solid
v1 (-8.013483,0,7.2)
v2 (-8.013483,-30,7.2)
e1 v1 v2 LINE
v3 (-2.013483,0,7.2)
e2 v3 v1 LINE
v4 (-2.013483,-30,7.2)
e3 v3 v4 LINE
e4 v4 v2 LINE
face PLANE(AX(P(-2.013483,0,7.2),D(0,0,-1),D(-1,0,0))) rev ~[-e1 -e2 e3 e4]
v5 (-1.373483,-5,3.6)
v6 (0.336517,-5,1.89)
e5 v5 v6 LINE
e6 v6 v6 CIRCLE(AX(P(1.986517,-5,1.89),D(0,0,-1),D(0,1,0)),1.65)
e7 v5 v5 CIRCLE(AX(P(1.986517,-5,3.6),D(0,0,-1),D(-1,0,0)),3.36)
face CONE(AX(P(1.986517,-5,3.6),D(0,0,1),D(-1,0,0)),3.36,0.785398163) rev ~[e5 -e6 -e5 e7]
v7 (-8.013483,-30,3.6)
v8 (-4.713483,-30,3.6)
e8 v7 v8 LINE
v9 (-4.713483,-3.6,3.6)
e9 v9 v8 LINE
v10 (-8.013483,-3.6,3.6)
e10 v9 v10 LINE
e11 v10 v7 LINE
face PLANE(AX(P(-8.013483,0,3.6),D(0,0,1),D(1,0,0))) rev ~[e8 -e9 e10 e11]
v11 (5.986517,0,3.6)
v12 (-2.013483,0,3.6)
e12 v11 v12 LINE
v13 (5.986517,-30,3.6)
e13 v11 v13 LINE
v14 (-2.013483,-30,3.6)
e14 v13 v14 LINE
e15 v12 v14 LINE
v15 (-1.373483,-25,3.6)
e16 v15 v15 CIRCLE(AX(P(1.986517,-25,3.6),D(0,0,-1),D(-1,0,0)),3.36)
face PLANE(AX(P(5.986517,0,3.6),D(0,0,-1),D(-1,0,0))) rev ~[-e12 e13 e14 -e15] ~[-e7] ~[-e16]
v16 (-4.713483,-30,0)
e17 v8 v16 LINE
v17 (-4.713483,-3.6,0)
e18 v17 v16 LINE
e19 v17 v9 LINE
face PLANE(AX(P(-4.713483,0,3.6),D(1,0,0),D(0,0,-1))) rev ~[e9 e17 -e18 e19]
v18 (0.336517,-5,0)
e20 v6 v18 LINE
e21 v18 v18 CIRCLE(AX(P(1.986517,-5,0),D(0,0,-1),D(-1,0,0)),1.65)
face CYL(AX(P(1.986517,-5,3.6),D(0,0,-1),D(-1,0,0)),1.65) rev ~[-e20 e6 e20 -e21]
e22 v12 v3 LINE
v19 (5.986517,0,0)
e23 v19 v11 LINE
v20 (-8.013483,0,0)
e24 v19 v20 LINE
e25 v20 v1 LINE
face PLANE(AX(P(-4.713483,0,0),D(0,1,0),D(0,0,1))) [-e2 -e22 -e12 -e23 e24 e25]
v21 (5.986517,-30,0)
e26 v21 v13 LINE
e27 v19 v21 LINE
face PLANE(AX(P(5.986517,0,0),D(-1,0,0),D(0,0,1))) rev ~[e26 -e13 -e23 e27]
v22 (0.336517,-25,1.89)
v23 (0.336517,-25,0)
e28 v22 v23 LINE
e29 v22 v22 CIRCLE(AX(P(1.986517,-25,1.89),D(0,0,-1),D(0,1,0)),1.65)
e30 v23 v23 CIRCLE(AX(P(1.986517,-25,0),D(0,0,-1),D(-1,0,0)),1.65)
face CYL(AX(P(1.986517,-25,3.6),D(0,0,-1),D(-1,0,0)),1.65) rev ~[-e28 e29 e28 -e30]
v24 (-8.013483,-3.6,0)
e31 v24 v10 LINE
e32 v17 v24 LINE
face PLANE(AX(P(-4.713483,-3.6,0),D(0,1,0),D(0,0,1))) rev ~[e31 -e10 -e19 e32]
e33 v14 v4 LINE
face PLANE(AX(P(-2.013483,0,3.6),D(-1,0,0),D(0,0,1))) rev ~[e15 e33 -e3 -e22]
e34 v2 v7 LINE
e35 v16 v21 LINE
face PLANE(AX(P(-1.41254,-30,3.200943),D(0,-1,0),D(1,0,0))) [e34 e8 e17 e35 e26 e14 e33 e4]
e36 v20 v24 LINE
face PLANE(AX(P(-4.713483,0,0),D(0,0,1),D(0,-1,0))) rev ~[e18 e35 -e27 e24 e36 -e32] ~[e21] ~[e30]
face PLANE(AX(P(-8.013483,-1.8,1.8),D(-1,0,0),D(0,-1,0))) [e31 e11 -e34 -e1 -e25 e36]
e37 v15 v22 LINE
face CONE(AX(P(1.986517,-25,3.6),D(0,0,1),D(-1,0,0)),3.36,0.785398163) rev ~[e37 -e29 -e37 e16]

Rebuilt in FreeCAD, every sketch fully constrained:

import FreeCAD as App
import Part
import Sketcher

doc = App.newDocument("Part")
params = doc.addObject("Spreadsheet::Sheet", "Params")
for row, (alias, value) in enumerate([
    ("sketch1_width", "8 mm"),
    ("sketch1_width2", "6 mm"),
    ("sketch1_width3", "10.7 mm"),
    ("sketch1_height", "3.6 mm"),
    ("pad1_length", "30 mm"),
    ("sketch2_diameter", "3.3 mm"),
    ("hole_diameter", "3.3 mm"),
    ("hole_csink_diameter", "6.72 mm"),
    ("sketch3_width", "3.6 mm"),
    ("pad2_length", "3.3 mm"),
], start=1):
    params.set(f"A{row}", alias)
    params.set(f"B{row}", "=" + value)
    params.setAlias(f"B{row}", alias)

body = doc.addObject("PartDesign::Body", "Body")

# Sketch on XZ plane
sketch1 = body.newObject("Sketcher::SketchObject", "Sketch")
sketch1.AttachmentSupport = (doc.getObject("XZ_Plane"), [""])
sketch1.MapMode = "FlatFace"
sketch1.addGeometry([
    Part.LineSegment(App.Vector(-4.713483, 0, 0), App.Vector(5.986517, 0, 0)),  # 0
    Part.LineSegment(App.Vector(5.986517, 0, 0), App.Vector(5.986517, 3.6, 0)),  # 1
    Part.LineSegment(App.Vector(5.986517, 3.6, 0), App.Vector(-2.013483, 3.6, 0)),  # 2
    Part.LineSegment(App.Vector(-2.013483, 3.6, 0), App.Vector(-2.013483, 7.2, 0)),  # 3
    Part.LineSegment(App.Vector(-2.013483, 7.2, 0), App.Vector(-8.013483, 7.2, 0)),  # 4
    Part.LineSegment(App.Vector(-8.013483, 7.2, 0), App.Vector(-8.013483, 3.6, 0)),  # 5
    Part.LineSegment(App.Vector(-8.013483, 3.6, 0), App.Vector(-4.713483, 3.6, 0)),  # 6
    Part.LineSegment(App.Vector(-4.713483, 3.6, 0), App.Vector(-4.713483, 0, 0)),  # 7
], False)
sketch1.addConstraint([
    Sketcher.Constraint("Coincident", 0, 2, 1, 1),
    Sketcher.Constraint("Coincident", 1, 2, 2, 1),
    Sketcher.Constraint("Coincident", 2, 2, 3, 1),
    Sketcher.Constraint("Coincident", 3, 2, 4, 1),
    Sketcher.Constraint("Coincident", 4, 2, 5, 1),
    Sketcher.Constraint("Coincident", 5, 2, 6, 1),
    Sketcher.Constraint("Coincident", 6, 2, 7, 1),
    Sketcher.Constraint("Coincident", 7, 2, 0, 1),
    Sketcher.Constraint("Horizontal", 0),
    Sketcher.Constraint("Vertical", 1),
    Sketcher.Constraint("Horizontal", 2),
    Sketcher.Constraint("Vertical", 3),
    Sketcher.Constraint("Horizontal", 4),
    Sketcher.Constraint("Vertical", 5),
    Sketcher.Constraint("Horizontal", 6),
    Sketcher.Constraint("Vertical", 7),
    Sketcher.Constraint("PointOnObject", 0, 2, -1),
    Sketcher.Constraint("Horizontal", 2, 2, 5, 2),
    Sketcher.Constraint("Equal", 1, 3),
    Sketcher.Constraint("DistanceX", 2, 2, 2, 1, 8.0),
    Sketcher.Constraint("DistanceX", 4, 2, 4, 1, 6.0),
    Sketcher.Constraint("DistanceX", 0, 1, 0, 2, 10.7),
    Sketcher.Constraint("DistanceY", 1, 1, 1, 2, 3.6),
    Sketcher.Constraint("DistanceX", -1, 1, 0, 2, 5.986517),
])
sketch1.setExpression("Constraints[19]", "Params.sketch1_width")
sketch1.setExpression("Constraints[20]", "Params.sketch1_width2")
sketch1.setExpression("Constraints[21]", "Params.sketch1_width3")
sketch1.setExpression("Constraints[22]", "Params.sketch1_height")
pad1 = body.newObject("PartDesign::Pad", "Pad")
pad1.Profile = sketch1
pad1.setExpression("Length", "Params.pad1_length")

# Sketch on XY plane
sketch2 = body.newObject("Sketcher::SketchObject", "Sketch001")
sketch2.AttachmentSupport = (doc.getObject("XY_Plane"), [""])
sketch2.MapMode = "FlatFace"
sketch2.AttachmentOffset = App.Placement(App.Vector(0, 0, 3.6), App.Rotation())
sketch2.addGeometry([
    Part.Circle(App.Vector(1.986517, -5, 0), App.Vector(0, 0, 1), 1.65),
    Part.Circle(App.Vector(1.986517, -25, 0), App.Vector(0, 0, 1), 1.65),
], False)
sketch2.addConstraint([
    Sketcher.Constraint("Equal", 0, 1),
    Sketcher.Constraint("Vertical", 0, 3, 1, 3),
    Sketcher.Constraint("Diameter", 0, 3.3),
    Sketcher.Constraint("DistanceY", 0, 3, -1, 1, 5.0),
    Sketcher.Constraint("DistanceY", 1, 3, -1, 1, 25.0),
    Sketcher.Constraint("DistanceX", -1, 1, 0, 3, 1.986517),
])
sketch2.setExpression("Constraints[2]", "Params.sketch2_diameter")
doc.recompute()
hole = body.newObject("PartDesign::Hole", "Hole")
hole.Profile = sketch2
hole.ThreadType = "None"
hole.setExpression("Diameter", "Params.hole_diameter")
hole.DepthType = "ThroughAll"
hole.HoleCutType = "Countersink"
hole.setExpression("HoleCutDiameter", "Params.hole_csink_diameter")
hole.HoleCutCountersinkAngle = 90

# Sketch on YZ plane
sketch3 = body.newObject("Sketcher::SketchObject", "Sketch002")
sketch3.AttachmentSupport = (doc.getObject("YZ_Plane"), [""])
sketch3.MapMode = "FlatFace"
sketch3.AttachmentOffset = App.Placement(App.Vector(0, 0, -4.713483), App.Rotation())
sketch3.addGeometry([
    Part.LineSegment(App.Vector(0, 3.6, 0), App.Vector(0, 0, 0)),
    Part.LineSegment(App.Vector(0, 0, 0), App.Vector(-3.6, 0, 0)),
    Part.LineSegment(App.Vector(-3.6, 0, 0), App.Vector(-3.6, 3.6, 0)),
    Part.LineSegment(App.Vector(-3.6, 3.6, 0), App.Vector(0, 3.6, 0)),
], False)
sketch3.addConstraint([
    Sketcher.Constraint("Coincident", 0, 2, 1, 1),
    Sketcher.Constraint("Coincident", 1, 2, 2, 1),
    Sketcher.Constraint("Coincident", 2, 2, 3, 1),
    Sketcher.Constraint("Coincident", 3, 2, 0, 1),
    Sketcher.Constraint("Vertical", 0),
    Sketcher.Constraint("Horizontal", 1),
    Sketcher.Constraint("Vertical", 2),
    Sketcher.Constraint("Horizontal", 3),
    Sketcher.Constraint("Coincident", 0, 2, -1, 1),
    Sketcher.Constraint("Equal", 3, 0),
    Sketcher.Constraint("DistanceX", 1, 2, 1, 1, 3.6),
])
sketch3.setExpression("Constraints[10]", "Params.sketch3_width")
pad2 = body.newObject("PartDesign::Pad", "Pad001")
pad2.Profile = sketch3
pad2.setExpression("Length", "Params.pad2_length")
pad2.Reversed = True

doc.recompute()
